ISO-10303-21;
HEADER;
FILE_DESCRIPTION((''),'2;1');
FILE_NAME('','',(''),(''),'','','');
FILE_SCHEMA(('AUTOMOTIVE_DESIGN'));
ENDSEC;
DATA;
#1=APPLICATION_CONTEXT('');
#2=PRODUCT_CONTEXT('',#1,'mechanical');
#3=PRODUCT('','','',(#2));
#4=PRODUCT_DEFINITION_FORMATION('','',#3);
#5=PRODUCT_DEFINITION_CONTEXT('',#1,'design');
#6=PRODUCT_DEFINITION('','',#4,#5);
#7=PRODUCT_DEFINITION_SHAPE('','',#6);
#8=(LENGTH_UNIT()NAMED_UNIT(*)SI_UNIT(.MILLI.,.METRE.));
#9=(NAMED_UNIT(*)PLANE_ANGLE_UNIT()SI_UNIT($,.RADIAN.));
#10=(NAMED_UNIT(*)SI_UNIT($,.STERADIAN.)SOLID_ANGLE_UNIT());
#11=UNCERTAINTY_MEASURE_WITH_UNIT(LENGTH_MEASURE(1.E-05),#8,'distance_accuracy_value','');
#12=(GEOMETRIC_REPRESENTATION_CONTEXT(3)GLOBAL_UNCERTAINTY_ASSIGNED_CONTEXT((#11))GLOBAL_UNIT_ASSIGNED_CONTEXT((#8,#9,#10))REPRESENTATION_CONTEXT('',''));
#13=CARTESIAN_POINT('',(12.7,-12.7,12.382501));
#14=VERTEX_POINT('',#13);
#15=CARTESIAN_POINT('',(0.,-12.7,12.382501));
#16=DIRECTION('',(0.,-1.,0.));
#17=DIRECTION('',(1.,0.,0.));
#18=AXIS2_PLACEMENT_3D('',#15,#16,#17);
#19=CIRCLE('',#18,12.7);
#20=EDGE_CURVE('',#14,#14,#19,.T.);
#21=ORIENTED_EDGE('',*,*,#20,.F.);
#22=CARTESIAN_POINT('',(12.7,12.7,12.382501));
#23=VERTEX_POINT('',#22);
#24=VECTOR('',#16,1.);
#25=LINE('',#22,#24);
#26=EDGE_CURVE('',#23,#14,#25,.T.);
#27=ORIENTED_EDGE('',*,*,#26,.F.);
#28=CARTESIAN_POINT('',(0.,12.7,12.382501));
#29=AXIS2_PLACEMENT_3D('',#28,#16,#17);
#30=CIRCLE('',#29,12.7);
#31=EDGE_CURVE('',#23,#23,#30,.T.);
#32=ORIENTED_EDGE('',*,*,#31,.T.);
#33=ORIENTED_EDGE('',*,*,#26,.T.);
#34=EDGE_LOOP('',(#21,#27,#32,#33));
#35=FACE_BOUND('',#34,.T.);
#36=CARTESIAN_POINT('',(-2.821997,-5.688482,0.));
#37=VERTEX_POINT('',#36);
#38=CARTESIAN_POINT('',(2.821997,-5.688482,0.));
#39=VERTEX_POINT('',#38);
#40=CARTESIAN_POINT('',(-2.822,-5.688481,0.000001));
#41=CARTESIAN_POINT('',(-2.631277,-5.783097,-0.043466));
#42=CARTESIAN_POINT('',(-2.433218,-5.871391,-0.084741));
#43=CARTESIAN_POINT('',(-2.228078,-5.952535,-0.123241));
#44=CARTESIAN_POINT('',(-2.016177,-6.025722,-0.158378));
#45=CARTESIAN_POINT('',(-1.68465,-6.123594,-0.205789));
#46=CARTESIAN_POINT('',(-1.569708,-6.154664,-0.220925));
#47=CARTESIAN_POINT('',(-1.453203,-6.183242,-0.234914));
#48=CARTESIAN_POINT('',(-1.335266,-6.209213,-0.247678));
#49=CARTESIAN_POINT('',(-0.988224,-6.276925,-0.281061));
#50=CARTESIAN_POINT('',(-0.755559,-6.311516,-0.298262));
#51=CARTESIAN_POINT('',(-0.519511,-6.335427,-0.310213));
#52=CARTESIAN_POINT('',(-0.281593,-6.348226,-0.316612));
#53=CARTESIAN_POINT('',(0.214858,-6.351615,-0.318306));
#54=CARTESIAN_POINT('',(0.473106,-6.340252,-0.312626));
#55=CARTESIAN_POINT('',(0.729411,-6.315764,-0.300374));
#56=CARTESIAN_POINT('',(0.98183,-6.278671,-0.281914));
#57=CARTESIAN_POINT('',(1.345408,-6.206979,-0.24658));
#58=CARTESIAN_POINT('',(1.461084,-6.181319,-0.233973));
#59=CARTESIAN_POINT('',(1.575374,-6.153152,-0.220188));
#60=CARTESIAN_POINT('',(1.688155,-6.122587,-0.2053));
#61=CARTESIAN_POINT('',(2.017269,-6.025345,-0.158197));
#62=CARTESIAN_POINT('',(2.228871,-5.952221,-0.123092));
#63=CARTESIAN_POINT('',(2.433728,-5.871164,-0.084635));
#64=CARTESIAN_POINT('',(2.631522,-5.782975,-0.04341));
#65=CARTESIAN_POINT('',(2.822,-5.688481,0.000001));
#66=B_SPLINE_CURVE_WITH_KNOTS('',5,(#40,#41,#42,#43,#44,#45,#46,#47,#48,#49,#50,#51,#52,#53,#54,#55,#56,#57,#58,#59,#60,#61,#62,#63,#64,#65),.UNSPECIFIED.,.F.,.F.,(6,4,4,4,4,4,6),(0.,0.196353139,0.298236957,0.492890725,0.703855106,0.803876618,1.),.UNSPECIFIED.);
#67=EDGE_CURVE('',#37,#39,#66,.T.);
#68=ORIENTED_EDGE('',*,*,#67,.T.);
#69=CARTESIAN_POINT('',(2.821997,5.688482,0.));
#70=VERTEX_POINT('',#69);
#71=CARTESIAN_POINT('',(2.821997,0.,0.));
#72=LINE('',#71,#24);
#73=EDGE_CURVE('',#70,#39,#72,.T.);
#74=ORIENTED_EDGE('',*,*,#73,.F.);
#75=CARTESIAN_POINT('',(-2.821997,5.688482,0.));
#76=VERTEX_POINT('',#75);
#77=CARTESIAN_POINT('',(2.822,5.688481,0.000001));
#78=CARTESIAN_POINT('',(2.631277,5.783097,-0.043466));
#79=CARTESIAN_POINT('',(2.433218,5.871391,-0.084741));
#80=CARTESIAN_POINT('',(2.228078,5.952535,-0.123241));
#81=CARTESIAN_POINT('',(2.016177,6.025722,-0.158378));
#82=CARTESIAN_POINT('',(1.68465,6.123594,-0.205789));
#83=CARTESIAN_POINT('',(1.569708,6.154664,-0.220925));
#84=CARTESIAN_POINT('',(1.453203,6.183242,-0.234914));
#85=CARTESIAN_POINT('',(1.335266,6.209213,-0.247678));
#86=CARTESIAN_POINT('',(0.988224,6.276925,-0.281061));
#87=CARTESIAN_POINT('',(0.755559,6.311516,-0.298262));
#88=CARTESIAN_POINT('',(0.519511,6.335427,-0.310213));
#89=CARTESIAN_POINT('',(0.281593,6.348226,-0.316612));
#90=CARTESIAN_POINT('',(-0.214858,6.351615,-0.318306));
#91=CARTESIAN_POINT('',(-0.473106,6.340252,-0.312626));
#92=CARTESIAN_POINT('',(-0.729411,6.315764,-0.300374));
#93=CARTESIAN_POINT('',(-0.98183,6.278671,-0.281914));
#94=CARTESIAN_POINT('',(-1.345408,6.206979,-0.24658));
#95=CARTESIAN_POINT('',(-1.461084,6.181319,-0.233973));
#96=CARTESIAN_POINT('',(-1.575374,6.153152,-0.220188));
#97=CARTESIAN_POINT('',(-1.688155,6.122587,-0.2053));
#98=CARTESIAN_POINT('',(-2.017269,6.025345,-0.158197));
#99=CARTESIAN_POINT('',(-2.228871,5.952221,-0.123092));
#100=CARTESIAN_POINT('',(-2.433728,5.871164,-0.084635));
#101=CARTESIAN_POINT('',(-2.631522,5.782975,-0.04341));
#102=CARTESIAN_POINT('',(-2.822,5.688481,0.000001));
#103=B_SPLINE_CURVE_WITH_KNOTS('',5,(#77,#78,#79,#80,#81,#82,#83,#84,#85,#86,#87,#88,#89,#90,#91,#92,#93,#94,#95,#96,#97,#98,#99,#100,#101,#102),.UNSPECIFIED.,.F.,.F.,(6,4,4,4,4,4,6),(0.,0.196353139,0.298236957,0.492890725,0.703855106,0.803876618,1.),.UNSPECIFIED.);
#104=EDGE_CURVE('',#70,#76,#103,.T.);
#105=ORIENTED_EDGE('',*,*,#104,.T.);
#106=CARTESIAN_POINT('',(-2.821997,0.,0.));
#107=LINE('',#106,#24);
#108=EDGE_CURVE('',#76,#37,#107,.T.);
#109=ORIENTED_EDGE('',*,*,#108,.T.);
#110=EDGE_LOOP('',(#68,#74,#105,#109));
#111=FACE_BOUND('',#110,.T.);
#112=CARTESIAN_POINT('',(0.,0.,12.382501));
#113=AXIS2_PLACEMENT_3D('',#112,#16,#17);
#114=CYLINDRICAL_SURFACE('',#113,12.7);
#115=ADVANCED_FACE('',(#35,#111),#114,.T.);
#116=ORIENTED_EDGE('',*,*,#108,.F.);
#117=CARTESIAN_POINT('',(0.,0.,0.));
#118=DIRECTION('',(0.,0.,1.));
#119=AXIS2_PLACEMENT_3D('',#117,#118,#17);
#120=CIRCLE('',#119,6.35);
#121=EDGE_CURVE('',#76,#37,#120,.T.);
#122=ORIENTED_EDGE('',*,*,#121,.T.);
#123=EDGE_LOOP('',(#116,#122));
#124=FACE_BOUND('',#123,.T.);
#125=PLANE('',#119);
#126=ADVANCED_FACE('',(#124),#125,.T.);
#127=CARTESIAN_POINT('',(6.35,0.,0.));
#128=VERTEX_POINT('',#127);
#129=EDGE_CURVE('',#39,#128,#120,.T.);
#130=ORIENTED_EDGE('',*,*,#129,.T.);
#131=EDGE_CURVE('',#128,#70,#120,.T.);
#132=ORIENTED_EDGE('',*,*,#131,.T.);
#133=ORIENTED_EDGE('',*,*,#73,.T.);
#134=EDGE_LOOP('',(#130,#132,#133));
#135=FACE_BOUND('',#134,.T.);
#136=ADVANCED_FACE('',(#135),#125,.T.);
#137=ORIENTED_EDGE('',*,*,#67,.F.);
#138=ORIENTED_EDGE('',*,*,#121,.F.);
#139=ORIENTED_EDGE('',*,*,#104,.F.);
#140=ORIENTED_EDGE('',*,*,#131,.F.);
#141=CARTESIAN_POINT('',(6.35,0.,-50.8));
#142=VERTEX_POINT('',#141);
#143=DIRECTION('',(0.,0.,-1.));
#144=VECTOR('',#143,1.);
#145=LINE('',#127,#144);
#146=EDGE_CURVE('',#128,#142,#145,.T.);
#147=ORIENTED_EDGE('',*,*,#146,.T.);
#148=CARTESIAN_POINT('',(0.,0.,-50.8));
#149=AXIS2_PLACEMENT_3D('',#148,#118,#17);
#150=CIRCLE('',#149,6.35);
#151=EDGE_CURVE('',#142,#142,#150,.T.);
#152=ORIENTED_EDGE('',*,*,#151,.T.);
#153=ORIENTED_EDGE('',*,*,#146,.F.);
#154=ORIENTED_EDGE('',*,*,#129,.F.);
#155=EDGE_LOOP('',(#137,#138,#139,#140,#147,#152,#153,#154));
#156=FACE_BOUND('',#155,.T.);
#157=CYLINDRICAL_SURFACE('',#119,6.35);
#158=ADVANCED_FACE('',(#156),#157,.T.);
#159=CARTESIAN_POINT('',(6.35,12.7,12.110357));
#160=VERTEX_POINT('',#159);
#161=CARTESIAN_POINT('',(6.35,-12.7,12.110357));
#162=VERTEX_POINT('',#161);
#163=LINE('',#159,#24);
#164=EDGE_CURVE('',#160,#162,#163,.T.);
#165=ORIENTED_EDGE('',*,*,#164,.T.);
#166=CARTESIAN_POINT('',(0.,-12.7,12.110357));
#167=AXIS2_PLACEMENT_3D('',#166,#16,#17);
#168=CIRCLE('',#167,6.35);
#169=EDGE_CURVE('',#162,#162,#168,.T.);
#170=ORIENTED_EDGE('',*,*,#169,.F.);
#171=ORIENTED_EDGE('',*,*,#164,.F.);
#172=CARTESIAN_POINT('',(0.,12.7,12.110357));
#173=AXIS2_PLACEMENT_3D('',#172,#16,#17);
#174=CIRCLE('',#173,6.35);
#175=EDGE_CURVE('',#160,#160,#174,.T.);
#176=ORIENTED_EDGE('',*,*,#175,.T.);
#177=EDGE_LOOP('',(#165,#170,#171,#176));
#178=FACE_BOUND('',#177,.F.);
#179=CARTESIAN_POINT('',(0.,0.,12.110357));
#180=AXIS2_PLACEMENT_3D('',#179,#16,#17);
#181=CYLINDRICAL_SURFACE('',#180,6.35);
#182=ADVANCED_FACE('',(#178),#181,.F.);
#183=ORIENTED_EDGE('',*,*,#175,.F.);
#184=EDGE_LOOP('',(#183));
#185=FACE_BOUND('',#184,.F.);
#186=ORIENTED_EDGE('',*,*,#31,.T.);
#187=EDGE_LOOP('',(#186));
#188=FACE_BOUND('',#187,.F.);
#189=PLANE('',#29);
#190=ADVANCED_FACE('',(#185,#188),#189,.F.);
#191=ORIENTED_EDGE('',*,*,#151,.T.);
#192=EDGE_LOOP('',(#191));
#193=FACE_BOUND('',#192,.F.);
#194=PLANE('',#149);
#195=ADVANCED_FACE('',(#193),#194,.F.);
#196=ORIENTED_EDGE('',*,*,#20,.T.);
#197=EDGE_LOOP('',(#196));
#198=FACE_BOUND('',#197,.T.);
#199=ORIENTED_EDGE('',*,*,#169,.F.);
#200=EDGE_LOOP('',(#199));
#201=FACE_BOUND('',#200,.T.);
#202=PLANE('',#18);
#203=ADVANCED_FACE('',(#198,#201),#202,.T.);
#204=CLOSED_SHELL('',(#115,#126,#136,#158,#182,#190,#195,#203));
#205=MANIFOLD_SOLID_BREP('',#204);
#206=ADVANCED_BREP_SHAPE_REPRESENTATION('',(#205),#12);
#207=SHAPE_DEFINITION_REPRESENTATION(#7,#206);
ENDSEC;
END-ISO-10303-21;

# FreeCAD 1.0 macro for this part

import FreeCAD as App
import Part
import Sketcher
Q = App.Units.Quantity

doc = App.newDocument("Part")
body = doc.addObject("PartDesign::Body", "Body")

# Sketch on XY plane
sketch1 = body.newObject("Sketcher::SketchObject", "Sketch")
sketch1.AttachmentSupport = (doc.getObject("XY_Plane"), [""])
sketch1.MapMode = "FlatFace"
sketch1.addGeometry(Part.Circle(App.Vector(0, 0, 0), App.Vector(0, 0, 1), 6.35), False)
sketch1.addConstraint(Sketcher.Constraint("Coincident", 0, 3, -1, 1))
sketch1.addConstraint(Sketcher.Constraint("Diameter", 0, Q("0.5 in")))
pad1 = body.newObject("PartDesign::Pad", "Pad")
pad1.Profile = sketch1
pad1.Length = Q("2 in")
pad1.Reversed = True

# Sketch on XZ plane
sketch2 = body.newObject("Sketcher::SketchObject", "Sketch001")
sketch2.AttachmentSupport = (doc.getObject("XZ_Plane"), [""])
sketch2.MapMode = "FlatFace"
sketch2.addGeometry(Part.Circle(App.Vector(0, 12.382501, 0), App.Vector(0, 0, 1), 12.7), False)
sketch2.addConstraint(Sketcher.Constraint("PointOnObject", 0, 3, -2))
sketch2.addConstraint(Sketcher.Constraint("Diameter", 0, Q("1 in")))
sketch2.addConstraint(Sketcher.Constraint("DistanceY", -1, 1, 0, 3, Q("0.4875 in")))
pad2 = body.newObject("PartDesign::Pad", "Pad001")
pad2.Profile = sketch2
pad2.Length = Q("1 in")
pad2.Midplane = True

# Sketch on XZ plane
sketch3 = body.newObject("Sketcher::SketchObject", "Sketch002")
sketch3.AttachmentSupport = (doc.getObject("XZ_Plane"), [""])
sketch3.MapMode = "FlatFace"
sketch3.addGeometry(Part.Circle(App.Vector(0, 12.110357, 0), App.Vector(0, 0, 1), 6.35), False)
sketch3.addConstraint(Sketcher.Constraint("PointOnObject", 0, 3, -2))
sketch3.addConstraint(Sketcher.Constraint("Diameter", 0, Q("0.5 in")))
sketch3.addConstraint(Sketcher.Constraint("DistanceY", -1, 1, 0, 3, 12.110357))
pocket1 = body.newObject("PartDesign::Pocket", "Pocket")
pocket1.Profile = sketch3
pocket1.Length = Q("1 in")
pocket1.Midplane = True

doc.recompute()
